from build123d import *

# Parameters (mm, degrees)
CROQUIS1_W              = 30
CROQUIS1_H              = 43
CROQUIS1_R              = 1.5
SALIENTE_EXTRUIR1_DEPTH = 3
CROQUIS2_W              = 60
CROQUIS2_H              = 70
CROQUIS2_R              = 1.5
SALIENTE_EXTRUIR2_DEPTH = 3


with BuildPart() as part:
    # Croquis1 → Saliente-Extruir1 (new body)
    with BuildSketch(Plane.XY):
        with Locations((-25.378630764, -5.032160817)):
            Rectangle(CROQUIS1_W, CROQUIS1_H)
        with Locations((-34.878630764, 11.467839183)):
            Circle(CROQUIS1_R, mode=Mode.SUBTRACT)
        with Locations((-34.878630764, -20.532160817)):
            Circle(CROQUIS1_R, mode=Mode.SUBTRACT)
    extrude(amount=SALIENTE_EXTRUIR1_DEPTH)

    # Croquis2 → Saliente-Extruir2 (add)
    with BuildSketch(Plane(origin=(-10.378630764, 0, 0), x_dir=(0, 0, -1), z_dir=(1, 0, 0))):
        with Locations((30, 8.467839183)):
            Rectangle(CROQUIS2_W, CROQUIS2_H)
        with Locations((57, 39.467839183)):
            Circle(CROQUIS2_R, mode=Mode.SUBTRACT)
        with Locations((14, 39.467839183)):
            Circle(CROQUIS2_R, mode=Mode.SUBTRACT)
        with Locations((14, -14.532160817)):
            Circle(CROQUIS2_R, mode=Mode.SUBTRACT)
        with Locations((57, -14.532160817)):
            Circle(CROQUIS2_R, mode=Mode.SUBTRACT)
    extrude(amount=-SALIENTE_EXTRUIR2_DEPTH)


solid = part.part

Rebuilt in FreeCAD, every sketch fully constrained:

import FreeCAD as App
import Part
import Sketcher
from FreeCAD import Vector

doc = App.newDocument("Part")
body = doc.addObject("PartDesign::Body", "Body")

sketch1 = body.newObject("Sketcher::SketchObject", "Sketch")
sketch1.AttachmentSupport = (doc.getObject("XY_Plane"), [""])
sketch1.MapMode = "FlatFace"
sketch1.addGeometry(Part.LineSegment(Vector(-40.4, 16.5, 0), Vector(-40.4, -26.5, 0)), False)
sketch1.addGeometry(Part.LineSegment(Vector(-40.4, -26.5, 0), Vector(-10.4, -26.5, 0)), False)
sketch1.addGeometry(Part.LineSegment(Vector(-10.4, -26.5, 0), Vector(-10.4, 16.5, 0)), False)
sketch1.addGeometry(Part.LineSegment(Vector(-10.4, 16.5, 0), Vector(-40.4, 16.5, 0)), False)
sketch1.addGeometry(Part.Circle(Vector(-34.9, -20.5, 0), Vector(0, 0, 1), 1.5), False)
sketch1.addGeometry(Part.Circle(Vector(-34.9, 11.5, 0), Vector(0, 0, 1), 1.5), False)
sketch1.addConstraint(Sketcher.Constraint("Coincident", 0, 2, 1, 1))
sketch1.addConstraint(Sketcher.Constraint("Coincident", 1, 2, 2, 1))
sketch1.addConstraint(Sketcher.Constraint("Coincident", 2, 2, 3, 1))
sketch1.addConstraint(Sketcher.Constraint("Coincident", 3, 2, 0, 1))
sketch1.addConstraint(Sketcher.Constraint("Vertical", 0))
sketch1.addConstraint(Sketcher.Constraint("Horizontal", 1))
sketch1.addConstraint(Sketcher.Constraint("Vertical", 2))
sketch1.addConstraint(Sketcher.Constraint("Horizontal", 3))
sketch1.addConstraint(Sketcher.Constraint("Equal", 4, 5))
sketch1.addConstraint(Sketcher.Constraint("Vertical", 4, 3, 5, 3))
sketch1.addConstraint(Sketcher.Constraint("Diameter", 4, 3.0))
sketch1.addConstraint(Sketcher.Constraint("DistanceX", 1, 1, 1, 2, 30.0))
sketch1.addConstraint(Sketcher.Constraint("DistanceY", 0, 2, 0, 1, 43.0))
sketch1.addConstraint(Sketcher.Constraint("DistanceY", 4, 3, 5, 3, 32.0))
sketch1.addConstraint(Sketcher.Constraint("DistanceY", 0, 2, 4, 3, 6.0))
sketch1.addConstraint(Sketcher.Constraint("DistanceX", 0, 2, 4, 3, 5.5))
sketch1.addConstraint(Sketcher.Constraint("DistanceX", 4, 3, -1, 1, 34.878631))
sketch1.addConstraint(Sketcher.Constraint("DistanceY", 4, 3, -1, 1, 20.532161))
pad1 = body.newObject("PartDesign::Pad", "Pad")
pad1.Profile = sketch1
pad1.Length = 3

sketch2 = body.newObject("Sketcher::SketchObject", "Sketch001")
sketch2.AttachmentSupport = (doc.getObject("YZ_Plane"), [""])
sketch2.MapMode = "FlatFace"
sketch2.AttachmentOffset = App.Placement(Vector(0, 0, -10.378631), App.Rotation())
sketch2.addGeometry(Part.LineSegment(Vector(43.5, 0, 0), Vector(-26.5, 0, 0)), False)
sketch2.addGeometry(Part.LineSegment(Vector(-26.5, 0, 0), Vector(-26.5, -60, 0)), False)
sketch2.addGeometry(Part.LineSegment(Vector(-26.5, -60, 0), Vector(43.5, -60, 0)), False)
sketch2.addGeometry(Part.LineSegment(Vector(43.5, -60, 0), Vector(43.5, 0, 0)), False)
sketch2.addGeometry(Part.Circle(Vector(-14.5, -14, 0), Vector(0, 0, 1), 1.5), False)
sketch2.addGeometry(Part.Circle(Vector(-14.5, -57, 0), Vector(0, 0, 1), 1.5), False)
sketch2.addGeometry(Part.Circle(Vector(39.5, -14, 0), Vector(0, 0, 1), 1.5), False)
sketch2.addGeometry(Part.Circle(Vector(39.5, -57, 0), Vector(0, 0, 1), 1.5), False)
sketch2.addConstraint(Sketcher.Constraint("Coincident", 0, 2, 1, 1))
sketch2.addConstraint(Sketcher.Constraint("Coincident", 1, 2, 2, 1))
sketch2.addConstraint(Sketcher.Constraint("Coincident", 2, 2, 3, 1))
sketch2.addConstraint(Sketcher.Constraint("Coincident", 3, 2, 0, 1))
sketch2.addConstraint(Sketcher.Constraint("Horizontal", 0))
sketch2.addConstraint(Sketcher.Constraint("Vertical", 1))
sketch2.addConstraint(Sketcher.Constraint("Horizontal", 2))
sketch2.addConstraint(Sketcher.Constraint("Vertical", 3))
sketch2.addConstraint(Sketcher.Constraint("Equal", 4, 5))
sketch2.addConstraint(Sketcher.Constraint("Equal", 5, 6))
sketch2.addConstraint(Sketcher.Constraint("Equal", 6, 7))
sketch2.addConstraint(Sketcher.Constraint("PointOnObject", 0, 2, -1))
sketch2.addConstraint(Sketcher.Constraint("Horizontal", 4, 3, 6, 3))
sketch2.addConstraint(Sketcher.Constraint("Horizontal", 5, 3, 7, 3))
sketch2.addConstraint(Sketcher.Constraint("Vertical", 4, 3, 5, 3))
sketch2.addConstraint(Sketcher.Constraint("Vertical", 6, 3, 7, 3))
sketch2.addConstraint(Sketcher.Constraint("Diameter", 4, 3.0))
sketch2.addConstraint(Sketcher.Constraint("DistanceX", 0, 2, 0, 1, 70.0))
sketch2.addConstraint(Sketcher.Constraint("DistanceY", 1, 2, 1, 1, 60.0))
sketch2.addConstraint(Sketcher.Constraint("DistanceY", 4, 3, -1, 1, 14.0))
sketch2.addConstraint(Sketcher.Constraint("DistanceY", 5, 3, -1, 1, 57.0))
sketch2.addConstraint(Sketcher.Constraint("DistanceX", 4, 3, 6, 3, 54.0))
sketch2.addConstraint(Sketcher.Constraint("DistanceX", 0, 2, 4, 3, 12.0))
sketch2.addConstraint(Sketcher.Constraint("DistanceX", 4, 3, -1, 1, 14.532161))
pad2 = body.newObject("PartDesign::Pad", "Pad001")
pad2.Profile = sketch2
pad2.Length = 3
pad2.Reversed = True

doc.recompute()
